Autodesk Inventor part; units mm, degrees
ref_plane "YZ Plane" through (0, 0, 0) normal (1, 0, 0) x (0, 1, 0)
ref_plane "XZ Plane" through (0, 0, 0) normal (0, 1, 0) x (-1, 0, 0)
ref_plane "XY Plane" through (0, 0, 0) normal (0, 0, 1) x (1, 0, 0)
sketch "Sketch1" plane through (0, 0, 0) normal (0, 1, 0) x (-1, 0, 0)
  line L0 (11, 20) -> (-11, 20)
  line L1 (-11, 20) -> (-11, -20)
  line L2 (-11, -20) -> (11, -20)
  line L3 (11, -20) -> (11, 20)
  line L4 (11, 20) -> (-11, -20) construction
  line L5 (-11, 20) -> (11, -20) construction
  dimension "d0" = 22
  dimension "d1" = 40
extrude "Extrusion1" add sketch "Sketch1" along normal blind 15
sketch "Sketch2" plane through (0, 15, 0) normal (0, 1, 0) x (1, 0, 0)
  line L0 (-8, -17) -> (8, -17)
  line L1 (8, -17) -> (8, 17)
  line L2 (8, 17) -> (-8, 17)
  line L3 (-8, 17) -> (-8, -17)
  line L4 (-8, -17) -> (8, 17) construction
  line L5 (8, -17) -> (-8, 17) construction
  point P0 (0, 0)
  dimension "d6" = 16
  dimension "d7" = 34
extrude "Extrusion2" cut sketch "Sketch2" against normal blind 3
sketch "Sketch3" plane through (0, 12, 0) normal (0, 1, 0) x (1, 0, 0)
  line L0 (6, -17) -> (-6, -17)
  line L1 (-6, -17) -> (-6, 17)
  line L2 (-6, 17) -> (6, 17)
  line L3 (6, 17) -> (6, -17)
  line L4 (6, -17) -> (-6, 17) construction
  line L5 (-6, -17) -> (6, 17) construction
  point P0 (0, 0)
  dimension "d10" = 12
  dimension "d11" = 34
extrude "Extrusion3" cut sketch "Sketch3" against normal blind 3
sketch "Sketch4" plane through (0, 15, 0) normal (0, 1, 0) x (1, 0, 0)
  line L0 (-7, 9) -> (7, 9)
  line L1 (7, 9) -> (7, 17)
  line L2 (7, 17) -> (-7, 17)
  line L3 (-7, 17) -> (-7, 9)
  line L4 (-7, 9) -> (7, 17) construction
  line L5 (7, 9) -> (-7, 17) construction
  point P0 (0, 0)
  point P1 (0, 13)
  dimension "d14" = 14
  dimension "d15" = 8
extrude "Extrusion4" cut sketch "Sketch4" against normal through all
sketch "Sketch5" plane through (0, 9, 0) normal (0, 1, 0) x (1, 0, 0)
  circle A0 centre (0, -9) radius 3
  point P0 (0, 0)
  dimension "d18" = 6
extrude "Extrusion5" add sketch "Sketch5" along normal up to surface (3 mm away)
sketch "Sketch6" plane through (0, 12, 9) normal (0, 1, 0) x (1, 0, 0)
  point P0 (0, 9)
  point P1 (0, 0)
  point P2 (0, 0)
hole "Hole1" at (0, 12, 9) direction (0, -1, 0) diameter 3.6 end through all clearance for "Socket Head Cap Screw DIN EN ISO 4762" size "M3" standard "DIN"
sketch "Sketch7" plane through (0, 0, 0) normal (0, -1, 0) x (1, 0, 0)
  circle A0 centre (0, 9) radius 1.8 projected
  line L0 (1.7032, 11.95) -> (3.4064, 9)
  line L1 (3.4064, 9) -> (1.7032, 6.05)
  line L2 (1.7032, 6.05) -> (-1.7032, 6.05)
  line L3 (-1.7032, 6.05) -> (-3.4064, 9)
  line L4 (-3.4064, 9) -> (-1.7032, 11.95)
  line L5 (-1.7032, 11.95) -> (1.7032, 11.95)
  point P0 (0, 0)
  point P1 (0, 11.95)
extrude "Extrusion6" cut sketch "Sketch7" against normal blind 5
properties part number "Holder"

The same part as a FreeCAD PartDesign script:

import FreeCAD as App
import Part
import Sketcher

V = App.Vector
Q = App.Units.Quantity


def add_polygon(sketch, points):
    """Adds a closed chain of lines whose ends are joined by coincident constraints."""
    first, n = sketch.GeometryCount, len(points)
    for a, b in zip(points, points[1:] + points[:1]):
        sketch.addGeometry(Part.LineSegment(App.Vector(*a, 0), App.Vector(*b, 0)), False)
    for i in range(n):
        sketch.addConstraint(Sketcher.Constraint("Coincident", first + i, 2, first + (i + 1) % n, 1))

doc = App.newDocument("Part")
body = doc.addObject("PartDesign::Body", "Body")

# Sketch on XZ plane
sketch1 = body.newObject("Sketcher::SketchObject", "Sketch")
sketch1.AttachmentSupport = (doc.getObject("XZ_Plane"), [""])
sketch1.MapMode = "FlatFace"
add_polygon(sketch1, [(-11, -20), (-11, 20), (11, 20), (11, -20)])  # lines 0-3
sketch1.addConstraint([
    Sketcher.Constraint("Vertical", 0),
    Sketcher.Constraint("Horizontal", 1),
    Sketcher.Constraint("Vertical", 2),
    Sketcher.Constraint("Horizontal", 3),
    Sketcher.Constraint("Symmetric", 0, 2, 2, 2, -1, 1),
    Sketcher.Constraint("DistanceX", 1, 1, 1, 2, Q("22 mm")),
    Sketcher.Constraint("DistanceY", 0, 1, 0, 2, Q("40 mm")),
])
pad1 = body.newObject("PartDesign::Pad", "Pad")
pad1.Profile = sketch1
pad1.Length = 15
pad1.Reversed = True

# Sketch on XZ plane
sketch2 = body.newObject("Sketcher::SketchObject", "Sketch001")
sketch2.AttachmentSupport = (doc.getObject("XZ_Plane"), [""])
sketch2.MapMode = "FlatFace"
sketch2.AttachmentOffset = App.Placement(V(0, 0, -15), App.Rotation())
add_polygon(sketch2, [(-8, -17), (-8, 17), (8, 17), (8, -17)])  # lines 0-3
sketch2.addConstraint([
    Sketcher.Constraint("Vertical", 0),
    Sketcher.Constraint("Horizontal", 1),
    Sketcher.Constraint("Vertical", 2),
    Sketcher.Constraint("Horizontal", 3),
    Sketcher.Constraint("Symmetric", 0, 2, 2, 2, -1, 1),
    Sketcher.Constraint("DistanceX", 1, 1, 1, 2, Q("16 mm")),
    Sketcher.Constraint("DistanceY", 0, 1, 0, 2, Q("34 mm")),
])
pocket1 = body.newObject("PartDesign::Pocket", "Pocket")
pocket1.Profile = sketch2
pocket1.Length = 3
pocket1.Reversed = True

# Sketch on XZ plane
sketch3 = body.newObject("Sketcher::SketchObject", "Sketch002")
sketch3.AttachmentSupport = (doc.getObject("XZ_Plane"), [""])
sketch3.MapMode = "FlatFace"
sketch3.AttachmentOffset = App.Placement(V(0, 0, -12), App.Rotation())
add_polygon(sketch3, [(-6, 17), (6, 17), (6, -17), (-6, -17)])  # lines 0-3
sketch3.addConstraint([
    Sketcher.Constraint("Horizontal", 0),
    Sketcher.Constraint("Vertical", 1),
    Sketcher.Constraint("Horizontal", 2),
    Sketcher.Constraint("Vertical", 3),
    Sketcher.Constraint("Symmetric", 0, 2, 2, 2, -1, 1),
    Sketcher.Constraint("DistanceX", 0, 1, 0, 2, Q("12 mm")),
    Sketcher.Constraint("DistanceY", 1, 2, 1, 1, Q("34 mm")),
])
pocket2 = body.newObject("PartDesign::Pocket", "Pocket001")
pocket2.Profile = sketch3
pocket2.Length = 3
pocket2.Reversed = True

# Sketch on XZ plane
sketch4 = body.newObject("Sketcher::SketchObject", "Sketch003")
sketch4.AttachmentSupport = (doc.getObject("XZ_Plane"), [""])
sketch4.MapMode = "FlatFace"
sketch4.AttachmentOffset = App.Placement(V(0, 0, -15), App.Rotation())
add_polygon(sketch4, [(-7, -17), (-7, -9), (7, -9), (7, -17)])  # lines 0-3
sketch4.addConstraint([
    Sketcher.Constraint("Vertical", 0),
    Sketcher.Constraint("Horizontal", 1),
    Sketcher.Constraint("Vertical", 2),
    Sketcher.Constraint("Horizontal", 3),
    Sketcher.Constraint("DistanceX", 1, 1, 1, 2, Q("14 mm")),
    Sketcher.Constraint("DistanceY", 0, 1, 0, 2, Q("8 mm")),
    Sketcher.Constraint("DistanceX", 0, 2, -1, 1, Q("7 mm")),
    Sketcher.Constraint("DistanceY", 0, 2, -1, 1, Q("9 mm")),
])
pocket3 = body.newObject("PartDesign::Pocket", "Pocket002")
pocket3.Profile = sketch4
pocket3.Type = "ThroughAll"
pocket3.Reversed = True

# Sketch on XZ plane
sketch5 = body.newObject("Sketcher::SketchObject", "Sketch004")
sketch5.AttachmentSupport = (doc.getObject("XZ_Plane"), [""])
sketch5.MapMode = "FlatFace"
sketch5.AttachmentOffset = App.Placement(V(0, 0, -9), App.Rotation())
sketch5.addGeometry(Part.Circle(V(0, 9, 0), V(0, 0, 1), 3), False)
sketch5.addConstraint([
    Sketcher.Constraint("PointOnObject", 0, 3, -2),
    Sketcher.Constraint("Diameter", 0, Q("6 mm")),
    Sketcher.Constraint("DistanceY", -1, 1, 0, 3, Q("9 mm")),
])
pad2 = body.newObject("PartDesign::Pad", "Pad001")
pad2.Profile = sketch5
pad2.Length = 3
pad2.Reversed = True

# Sketch on XZ plane
sketch6 = body.newObject("Sketcher::SketchObject", "Sketch005")
sketch6.AttachmentSupport = (doc.getObject("XZ_Plane"), [""])
sketch6.MapMode = "FlatFace"
sketch6.AttachmentOffset = App.Placement(V(0, 0, -12), App.Rotation())
sketch6.addGeometry(Part.Circle(V(0, 9, 0), V(0, 0, 1), 1.8), False)
sketch6.addConstraint([
    Sketcher.Constraint("PointOnObject", 0, 3, -2),
    Sketcher.Constraint("Diameter", 0, Q("3.6 mm")),
    Sketcher.Constraint("DistanceY", -1, 1, 0, 3, Q("9 mm")),
])
doc.recompute()
hole = body.newObject("PartDesign::Hole", "Hole")
hole.Profile = sketch6
hole.ThreadType = "None"
hole.Diameter = 3.6
hole.DepthType = "ThroughAll"
hole.Reversed = True

# Sketch on XZ plane
sketch7 = body.newObject("Sketcher::SketchObject", "Sketch006")
sketch7.AttachmentSupport = (doc.getObject("XZ_Plane"), [""])
sketch7.MapMode = "FlatFace"
add_polygon(sketch7, [(3.4, 9), (1.7, 11.9), (-1.7, 11.9), (-3.4, 9), (-1.7, 6), (1.7, 6)])  # lines 0-5
sketch7.addGeometry(Part.Circle(V(0, 9, 0), V(0, 0, 1), 1.8), False)  # 6
sketch7.addConstraint([
    Sketcher.Constraint("Horizontal", 1),
    Sketcher.Constraint("Horizontal", 4),
    Sketcher.Constraint("Symmetric", 2, 2, 5, 2, -2),
    Sketcher.Constraint("PointOnObject", 6, 3, -2),
    Sketcher.Constraint("Parallel", 0, 3),
    Sketcher.Constraint("Parallel", 2, 5),
    Sketcher.Constraint("Horizontal", 6, 3, 2, 2),
    Sketcher.Constraint("Vertical", 1, 2, 3, 2),
    Sketcher.Constraint("Vertical", 0, 2, 4, 2),
    Sketcher.Constraint("Diameter", 6, Q("3.6 mm")),
    Sketcher.Constraint("Angle", 0, Q("120.0002 deg")),
    Sketcher.Constraint("DistanceY", -1, 1, 6, 3, Q("9 mm")),
    Sketcher.Constraint("DistanceY", 3, 2, 1, 2, Q("5.9 mm")),
    Sketcher.Constraint("DistanceX", 1, 2, 1, 1, Q("3.4064 mm")),
])
pocket4 = body.newObject("PartDesign::Pocket", "Pocket003")
pocket4.Profile = sketch7
pocket4.Length = 5

doc.recompute()
